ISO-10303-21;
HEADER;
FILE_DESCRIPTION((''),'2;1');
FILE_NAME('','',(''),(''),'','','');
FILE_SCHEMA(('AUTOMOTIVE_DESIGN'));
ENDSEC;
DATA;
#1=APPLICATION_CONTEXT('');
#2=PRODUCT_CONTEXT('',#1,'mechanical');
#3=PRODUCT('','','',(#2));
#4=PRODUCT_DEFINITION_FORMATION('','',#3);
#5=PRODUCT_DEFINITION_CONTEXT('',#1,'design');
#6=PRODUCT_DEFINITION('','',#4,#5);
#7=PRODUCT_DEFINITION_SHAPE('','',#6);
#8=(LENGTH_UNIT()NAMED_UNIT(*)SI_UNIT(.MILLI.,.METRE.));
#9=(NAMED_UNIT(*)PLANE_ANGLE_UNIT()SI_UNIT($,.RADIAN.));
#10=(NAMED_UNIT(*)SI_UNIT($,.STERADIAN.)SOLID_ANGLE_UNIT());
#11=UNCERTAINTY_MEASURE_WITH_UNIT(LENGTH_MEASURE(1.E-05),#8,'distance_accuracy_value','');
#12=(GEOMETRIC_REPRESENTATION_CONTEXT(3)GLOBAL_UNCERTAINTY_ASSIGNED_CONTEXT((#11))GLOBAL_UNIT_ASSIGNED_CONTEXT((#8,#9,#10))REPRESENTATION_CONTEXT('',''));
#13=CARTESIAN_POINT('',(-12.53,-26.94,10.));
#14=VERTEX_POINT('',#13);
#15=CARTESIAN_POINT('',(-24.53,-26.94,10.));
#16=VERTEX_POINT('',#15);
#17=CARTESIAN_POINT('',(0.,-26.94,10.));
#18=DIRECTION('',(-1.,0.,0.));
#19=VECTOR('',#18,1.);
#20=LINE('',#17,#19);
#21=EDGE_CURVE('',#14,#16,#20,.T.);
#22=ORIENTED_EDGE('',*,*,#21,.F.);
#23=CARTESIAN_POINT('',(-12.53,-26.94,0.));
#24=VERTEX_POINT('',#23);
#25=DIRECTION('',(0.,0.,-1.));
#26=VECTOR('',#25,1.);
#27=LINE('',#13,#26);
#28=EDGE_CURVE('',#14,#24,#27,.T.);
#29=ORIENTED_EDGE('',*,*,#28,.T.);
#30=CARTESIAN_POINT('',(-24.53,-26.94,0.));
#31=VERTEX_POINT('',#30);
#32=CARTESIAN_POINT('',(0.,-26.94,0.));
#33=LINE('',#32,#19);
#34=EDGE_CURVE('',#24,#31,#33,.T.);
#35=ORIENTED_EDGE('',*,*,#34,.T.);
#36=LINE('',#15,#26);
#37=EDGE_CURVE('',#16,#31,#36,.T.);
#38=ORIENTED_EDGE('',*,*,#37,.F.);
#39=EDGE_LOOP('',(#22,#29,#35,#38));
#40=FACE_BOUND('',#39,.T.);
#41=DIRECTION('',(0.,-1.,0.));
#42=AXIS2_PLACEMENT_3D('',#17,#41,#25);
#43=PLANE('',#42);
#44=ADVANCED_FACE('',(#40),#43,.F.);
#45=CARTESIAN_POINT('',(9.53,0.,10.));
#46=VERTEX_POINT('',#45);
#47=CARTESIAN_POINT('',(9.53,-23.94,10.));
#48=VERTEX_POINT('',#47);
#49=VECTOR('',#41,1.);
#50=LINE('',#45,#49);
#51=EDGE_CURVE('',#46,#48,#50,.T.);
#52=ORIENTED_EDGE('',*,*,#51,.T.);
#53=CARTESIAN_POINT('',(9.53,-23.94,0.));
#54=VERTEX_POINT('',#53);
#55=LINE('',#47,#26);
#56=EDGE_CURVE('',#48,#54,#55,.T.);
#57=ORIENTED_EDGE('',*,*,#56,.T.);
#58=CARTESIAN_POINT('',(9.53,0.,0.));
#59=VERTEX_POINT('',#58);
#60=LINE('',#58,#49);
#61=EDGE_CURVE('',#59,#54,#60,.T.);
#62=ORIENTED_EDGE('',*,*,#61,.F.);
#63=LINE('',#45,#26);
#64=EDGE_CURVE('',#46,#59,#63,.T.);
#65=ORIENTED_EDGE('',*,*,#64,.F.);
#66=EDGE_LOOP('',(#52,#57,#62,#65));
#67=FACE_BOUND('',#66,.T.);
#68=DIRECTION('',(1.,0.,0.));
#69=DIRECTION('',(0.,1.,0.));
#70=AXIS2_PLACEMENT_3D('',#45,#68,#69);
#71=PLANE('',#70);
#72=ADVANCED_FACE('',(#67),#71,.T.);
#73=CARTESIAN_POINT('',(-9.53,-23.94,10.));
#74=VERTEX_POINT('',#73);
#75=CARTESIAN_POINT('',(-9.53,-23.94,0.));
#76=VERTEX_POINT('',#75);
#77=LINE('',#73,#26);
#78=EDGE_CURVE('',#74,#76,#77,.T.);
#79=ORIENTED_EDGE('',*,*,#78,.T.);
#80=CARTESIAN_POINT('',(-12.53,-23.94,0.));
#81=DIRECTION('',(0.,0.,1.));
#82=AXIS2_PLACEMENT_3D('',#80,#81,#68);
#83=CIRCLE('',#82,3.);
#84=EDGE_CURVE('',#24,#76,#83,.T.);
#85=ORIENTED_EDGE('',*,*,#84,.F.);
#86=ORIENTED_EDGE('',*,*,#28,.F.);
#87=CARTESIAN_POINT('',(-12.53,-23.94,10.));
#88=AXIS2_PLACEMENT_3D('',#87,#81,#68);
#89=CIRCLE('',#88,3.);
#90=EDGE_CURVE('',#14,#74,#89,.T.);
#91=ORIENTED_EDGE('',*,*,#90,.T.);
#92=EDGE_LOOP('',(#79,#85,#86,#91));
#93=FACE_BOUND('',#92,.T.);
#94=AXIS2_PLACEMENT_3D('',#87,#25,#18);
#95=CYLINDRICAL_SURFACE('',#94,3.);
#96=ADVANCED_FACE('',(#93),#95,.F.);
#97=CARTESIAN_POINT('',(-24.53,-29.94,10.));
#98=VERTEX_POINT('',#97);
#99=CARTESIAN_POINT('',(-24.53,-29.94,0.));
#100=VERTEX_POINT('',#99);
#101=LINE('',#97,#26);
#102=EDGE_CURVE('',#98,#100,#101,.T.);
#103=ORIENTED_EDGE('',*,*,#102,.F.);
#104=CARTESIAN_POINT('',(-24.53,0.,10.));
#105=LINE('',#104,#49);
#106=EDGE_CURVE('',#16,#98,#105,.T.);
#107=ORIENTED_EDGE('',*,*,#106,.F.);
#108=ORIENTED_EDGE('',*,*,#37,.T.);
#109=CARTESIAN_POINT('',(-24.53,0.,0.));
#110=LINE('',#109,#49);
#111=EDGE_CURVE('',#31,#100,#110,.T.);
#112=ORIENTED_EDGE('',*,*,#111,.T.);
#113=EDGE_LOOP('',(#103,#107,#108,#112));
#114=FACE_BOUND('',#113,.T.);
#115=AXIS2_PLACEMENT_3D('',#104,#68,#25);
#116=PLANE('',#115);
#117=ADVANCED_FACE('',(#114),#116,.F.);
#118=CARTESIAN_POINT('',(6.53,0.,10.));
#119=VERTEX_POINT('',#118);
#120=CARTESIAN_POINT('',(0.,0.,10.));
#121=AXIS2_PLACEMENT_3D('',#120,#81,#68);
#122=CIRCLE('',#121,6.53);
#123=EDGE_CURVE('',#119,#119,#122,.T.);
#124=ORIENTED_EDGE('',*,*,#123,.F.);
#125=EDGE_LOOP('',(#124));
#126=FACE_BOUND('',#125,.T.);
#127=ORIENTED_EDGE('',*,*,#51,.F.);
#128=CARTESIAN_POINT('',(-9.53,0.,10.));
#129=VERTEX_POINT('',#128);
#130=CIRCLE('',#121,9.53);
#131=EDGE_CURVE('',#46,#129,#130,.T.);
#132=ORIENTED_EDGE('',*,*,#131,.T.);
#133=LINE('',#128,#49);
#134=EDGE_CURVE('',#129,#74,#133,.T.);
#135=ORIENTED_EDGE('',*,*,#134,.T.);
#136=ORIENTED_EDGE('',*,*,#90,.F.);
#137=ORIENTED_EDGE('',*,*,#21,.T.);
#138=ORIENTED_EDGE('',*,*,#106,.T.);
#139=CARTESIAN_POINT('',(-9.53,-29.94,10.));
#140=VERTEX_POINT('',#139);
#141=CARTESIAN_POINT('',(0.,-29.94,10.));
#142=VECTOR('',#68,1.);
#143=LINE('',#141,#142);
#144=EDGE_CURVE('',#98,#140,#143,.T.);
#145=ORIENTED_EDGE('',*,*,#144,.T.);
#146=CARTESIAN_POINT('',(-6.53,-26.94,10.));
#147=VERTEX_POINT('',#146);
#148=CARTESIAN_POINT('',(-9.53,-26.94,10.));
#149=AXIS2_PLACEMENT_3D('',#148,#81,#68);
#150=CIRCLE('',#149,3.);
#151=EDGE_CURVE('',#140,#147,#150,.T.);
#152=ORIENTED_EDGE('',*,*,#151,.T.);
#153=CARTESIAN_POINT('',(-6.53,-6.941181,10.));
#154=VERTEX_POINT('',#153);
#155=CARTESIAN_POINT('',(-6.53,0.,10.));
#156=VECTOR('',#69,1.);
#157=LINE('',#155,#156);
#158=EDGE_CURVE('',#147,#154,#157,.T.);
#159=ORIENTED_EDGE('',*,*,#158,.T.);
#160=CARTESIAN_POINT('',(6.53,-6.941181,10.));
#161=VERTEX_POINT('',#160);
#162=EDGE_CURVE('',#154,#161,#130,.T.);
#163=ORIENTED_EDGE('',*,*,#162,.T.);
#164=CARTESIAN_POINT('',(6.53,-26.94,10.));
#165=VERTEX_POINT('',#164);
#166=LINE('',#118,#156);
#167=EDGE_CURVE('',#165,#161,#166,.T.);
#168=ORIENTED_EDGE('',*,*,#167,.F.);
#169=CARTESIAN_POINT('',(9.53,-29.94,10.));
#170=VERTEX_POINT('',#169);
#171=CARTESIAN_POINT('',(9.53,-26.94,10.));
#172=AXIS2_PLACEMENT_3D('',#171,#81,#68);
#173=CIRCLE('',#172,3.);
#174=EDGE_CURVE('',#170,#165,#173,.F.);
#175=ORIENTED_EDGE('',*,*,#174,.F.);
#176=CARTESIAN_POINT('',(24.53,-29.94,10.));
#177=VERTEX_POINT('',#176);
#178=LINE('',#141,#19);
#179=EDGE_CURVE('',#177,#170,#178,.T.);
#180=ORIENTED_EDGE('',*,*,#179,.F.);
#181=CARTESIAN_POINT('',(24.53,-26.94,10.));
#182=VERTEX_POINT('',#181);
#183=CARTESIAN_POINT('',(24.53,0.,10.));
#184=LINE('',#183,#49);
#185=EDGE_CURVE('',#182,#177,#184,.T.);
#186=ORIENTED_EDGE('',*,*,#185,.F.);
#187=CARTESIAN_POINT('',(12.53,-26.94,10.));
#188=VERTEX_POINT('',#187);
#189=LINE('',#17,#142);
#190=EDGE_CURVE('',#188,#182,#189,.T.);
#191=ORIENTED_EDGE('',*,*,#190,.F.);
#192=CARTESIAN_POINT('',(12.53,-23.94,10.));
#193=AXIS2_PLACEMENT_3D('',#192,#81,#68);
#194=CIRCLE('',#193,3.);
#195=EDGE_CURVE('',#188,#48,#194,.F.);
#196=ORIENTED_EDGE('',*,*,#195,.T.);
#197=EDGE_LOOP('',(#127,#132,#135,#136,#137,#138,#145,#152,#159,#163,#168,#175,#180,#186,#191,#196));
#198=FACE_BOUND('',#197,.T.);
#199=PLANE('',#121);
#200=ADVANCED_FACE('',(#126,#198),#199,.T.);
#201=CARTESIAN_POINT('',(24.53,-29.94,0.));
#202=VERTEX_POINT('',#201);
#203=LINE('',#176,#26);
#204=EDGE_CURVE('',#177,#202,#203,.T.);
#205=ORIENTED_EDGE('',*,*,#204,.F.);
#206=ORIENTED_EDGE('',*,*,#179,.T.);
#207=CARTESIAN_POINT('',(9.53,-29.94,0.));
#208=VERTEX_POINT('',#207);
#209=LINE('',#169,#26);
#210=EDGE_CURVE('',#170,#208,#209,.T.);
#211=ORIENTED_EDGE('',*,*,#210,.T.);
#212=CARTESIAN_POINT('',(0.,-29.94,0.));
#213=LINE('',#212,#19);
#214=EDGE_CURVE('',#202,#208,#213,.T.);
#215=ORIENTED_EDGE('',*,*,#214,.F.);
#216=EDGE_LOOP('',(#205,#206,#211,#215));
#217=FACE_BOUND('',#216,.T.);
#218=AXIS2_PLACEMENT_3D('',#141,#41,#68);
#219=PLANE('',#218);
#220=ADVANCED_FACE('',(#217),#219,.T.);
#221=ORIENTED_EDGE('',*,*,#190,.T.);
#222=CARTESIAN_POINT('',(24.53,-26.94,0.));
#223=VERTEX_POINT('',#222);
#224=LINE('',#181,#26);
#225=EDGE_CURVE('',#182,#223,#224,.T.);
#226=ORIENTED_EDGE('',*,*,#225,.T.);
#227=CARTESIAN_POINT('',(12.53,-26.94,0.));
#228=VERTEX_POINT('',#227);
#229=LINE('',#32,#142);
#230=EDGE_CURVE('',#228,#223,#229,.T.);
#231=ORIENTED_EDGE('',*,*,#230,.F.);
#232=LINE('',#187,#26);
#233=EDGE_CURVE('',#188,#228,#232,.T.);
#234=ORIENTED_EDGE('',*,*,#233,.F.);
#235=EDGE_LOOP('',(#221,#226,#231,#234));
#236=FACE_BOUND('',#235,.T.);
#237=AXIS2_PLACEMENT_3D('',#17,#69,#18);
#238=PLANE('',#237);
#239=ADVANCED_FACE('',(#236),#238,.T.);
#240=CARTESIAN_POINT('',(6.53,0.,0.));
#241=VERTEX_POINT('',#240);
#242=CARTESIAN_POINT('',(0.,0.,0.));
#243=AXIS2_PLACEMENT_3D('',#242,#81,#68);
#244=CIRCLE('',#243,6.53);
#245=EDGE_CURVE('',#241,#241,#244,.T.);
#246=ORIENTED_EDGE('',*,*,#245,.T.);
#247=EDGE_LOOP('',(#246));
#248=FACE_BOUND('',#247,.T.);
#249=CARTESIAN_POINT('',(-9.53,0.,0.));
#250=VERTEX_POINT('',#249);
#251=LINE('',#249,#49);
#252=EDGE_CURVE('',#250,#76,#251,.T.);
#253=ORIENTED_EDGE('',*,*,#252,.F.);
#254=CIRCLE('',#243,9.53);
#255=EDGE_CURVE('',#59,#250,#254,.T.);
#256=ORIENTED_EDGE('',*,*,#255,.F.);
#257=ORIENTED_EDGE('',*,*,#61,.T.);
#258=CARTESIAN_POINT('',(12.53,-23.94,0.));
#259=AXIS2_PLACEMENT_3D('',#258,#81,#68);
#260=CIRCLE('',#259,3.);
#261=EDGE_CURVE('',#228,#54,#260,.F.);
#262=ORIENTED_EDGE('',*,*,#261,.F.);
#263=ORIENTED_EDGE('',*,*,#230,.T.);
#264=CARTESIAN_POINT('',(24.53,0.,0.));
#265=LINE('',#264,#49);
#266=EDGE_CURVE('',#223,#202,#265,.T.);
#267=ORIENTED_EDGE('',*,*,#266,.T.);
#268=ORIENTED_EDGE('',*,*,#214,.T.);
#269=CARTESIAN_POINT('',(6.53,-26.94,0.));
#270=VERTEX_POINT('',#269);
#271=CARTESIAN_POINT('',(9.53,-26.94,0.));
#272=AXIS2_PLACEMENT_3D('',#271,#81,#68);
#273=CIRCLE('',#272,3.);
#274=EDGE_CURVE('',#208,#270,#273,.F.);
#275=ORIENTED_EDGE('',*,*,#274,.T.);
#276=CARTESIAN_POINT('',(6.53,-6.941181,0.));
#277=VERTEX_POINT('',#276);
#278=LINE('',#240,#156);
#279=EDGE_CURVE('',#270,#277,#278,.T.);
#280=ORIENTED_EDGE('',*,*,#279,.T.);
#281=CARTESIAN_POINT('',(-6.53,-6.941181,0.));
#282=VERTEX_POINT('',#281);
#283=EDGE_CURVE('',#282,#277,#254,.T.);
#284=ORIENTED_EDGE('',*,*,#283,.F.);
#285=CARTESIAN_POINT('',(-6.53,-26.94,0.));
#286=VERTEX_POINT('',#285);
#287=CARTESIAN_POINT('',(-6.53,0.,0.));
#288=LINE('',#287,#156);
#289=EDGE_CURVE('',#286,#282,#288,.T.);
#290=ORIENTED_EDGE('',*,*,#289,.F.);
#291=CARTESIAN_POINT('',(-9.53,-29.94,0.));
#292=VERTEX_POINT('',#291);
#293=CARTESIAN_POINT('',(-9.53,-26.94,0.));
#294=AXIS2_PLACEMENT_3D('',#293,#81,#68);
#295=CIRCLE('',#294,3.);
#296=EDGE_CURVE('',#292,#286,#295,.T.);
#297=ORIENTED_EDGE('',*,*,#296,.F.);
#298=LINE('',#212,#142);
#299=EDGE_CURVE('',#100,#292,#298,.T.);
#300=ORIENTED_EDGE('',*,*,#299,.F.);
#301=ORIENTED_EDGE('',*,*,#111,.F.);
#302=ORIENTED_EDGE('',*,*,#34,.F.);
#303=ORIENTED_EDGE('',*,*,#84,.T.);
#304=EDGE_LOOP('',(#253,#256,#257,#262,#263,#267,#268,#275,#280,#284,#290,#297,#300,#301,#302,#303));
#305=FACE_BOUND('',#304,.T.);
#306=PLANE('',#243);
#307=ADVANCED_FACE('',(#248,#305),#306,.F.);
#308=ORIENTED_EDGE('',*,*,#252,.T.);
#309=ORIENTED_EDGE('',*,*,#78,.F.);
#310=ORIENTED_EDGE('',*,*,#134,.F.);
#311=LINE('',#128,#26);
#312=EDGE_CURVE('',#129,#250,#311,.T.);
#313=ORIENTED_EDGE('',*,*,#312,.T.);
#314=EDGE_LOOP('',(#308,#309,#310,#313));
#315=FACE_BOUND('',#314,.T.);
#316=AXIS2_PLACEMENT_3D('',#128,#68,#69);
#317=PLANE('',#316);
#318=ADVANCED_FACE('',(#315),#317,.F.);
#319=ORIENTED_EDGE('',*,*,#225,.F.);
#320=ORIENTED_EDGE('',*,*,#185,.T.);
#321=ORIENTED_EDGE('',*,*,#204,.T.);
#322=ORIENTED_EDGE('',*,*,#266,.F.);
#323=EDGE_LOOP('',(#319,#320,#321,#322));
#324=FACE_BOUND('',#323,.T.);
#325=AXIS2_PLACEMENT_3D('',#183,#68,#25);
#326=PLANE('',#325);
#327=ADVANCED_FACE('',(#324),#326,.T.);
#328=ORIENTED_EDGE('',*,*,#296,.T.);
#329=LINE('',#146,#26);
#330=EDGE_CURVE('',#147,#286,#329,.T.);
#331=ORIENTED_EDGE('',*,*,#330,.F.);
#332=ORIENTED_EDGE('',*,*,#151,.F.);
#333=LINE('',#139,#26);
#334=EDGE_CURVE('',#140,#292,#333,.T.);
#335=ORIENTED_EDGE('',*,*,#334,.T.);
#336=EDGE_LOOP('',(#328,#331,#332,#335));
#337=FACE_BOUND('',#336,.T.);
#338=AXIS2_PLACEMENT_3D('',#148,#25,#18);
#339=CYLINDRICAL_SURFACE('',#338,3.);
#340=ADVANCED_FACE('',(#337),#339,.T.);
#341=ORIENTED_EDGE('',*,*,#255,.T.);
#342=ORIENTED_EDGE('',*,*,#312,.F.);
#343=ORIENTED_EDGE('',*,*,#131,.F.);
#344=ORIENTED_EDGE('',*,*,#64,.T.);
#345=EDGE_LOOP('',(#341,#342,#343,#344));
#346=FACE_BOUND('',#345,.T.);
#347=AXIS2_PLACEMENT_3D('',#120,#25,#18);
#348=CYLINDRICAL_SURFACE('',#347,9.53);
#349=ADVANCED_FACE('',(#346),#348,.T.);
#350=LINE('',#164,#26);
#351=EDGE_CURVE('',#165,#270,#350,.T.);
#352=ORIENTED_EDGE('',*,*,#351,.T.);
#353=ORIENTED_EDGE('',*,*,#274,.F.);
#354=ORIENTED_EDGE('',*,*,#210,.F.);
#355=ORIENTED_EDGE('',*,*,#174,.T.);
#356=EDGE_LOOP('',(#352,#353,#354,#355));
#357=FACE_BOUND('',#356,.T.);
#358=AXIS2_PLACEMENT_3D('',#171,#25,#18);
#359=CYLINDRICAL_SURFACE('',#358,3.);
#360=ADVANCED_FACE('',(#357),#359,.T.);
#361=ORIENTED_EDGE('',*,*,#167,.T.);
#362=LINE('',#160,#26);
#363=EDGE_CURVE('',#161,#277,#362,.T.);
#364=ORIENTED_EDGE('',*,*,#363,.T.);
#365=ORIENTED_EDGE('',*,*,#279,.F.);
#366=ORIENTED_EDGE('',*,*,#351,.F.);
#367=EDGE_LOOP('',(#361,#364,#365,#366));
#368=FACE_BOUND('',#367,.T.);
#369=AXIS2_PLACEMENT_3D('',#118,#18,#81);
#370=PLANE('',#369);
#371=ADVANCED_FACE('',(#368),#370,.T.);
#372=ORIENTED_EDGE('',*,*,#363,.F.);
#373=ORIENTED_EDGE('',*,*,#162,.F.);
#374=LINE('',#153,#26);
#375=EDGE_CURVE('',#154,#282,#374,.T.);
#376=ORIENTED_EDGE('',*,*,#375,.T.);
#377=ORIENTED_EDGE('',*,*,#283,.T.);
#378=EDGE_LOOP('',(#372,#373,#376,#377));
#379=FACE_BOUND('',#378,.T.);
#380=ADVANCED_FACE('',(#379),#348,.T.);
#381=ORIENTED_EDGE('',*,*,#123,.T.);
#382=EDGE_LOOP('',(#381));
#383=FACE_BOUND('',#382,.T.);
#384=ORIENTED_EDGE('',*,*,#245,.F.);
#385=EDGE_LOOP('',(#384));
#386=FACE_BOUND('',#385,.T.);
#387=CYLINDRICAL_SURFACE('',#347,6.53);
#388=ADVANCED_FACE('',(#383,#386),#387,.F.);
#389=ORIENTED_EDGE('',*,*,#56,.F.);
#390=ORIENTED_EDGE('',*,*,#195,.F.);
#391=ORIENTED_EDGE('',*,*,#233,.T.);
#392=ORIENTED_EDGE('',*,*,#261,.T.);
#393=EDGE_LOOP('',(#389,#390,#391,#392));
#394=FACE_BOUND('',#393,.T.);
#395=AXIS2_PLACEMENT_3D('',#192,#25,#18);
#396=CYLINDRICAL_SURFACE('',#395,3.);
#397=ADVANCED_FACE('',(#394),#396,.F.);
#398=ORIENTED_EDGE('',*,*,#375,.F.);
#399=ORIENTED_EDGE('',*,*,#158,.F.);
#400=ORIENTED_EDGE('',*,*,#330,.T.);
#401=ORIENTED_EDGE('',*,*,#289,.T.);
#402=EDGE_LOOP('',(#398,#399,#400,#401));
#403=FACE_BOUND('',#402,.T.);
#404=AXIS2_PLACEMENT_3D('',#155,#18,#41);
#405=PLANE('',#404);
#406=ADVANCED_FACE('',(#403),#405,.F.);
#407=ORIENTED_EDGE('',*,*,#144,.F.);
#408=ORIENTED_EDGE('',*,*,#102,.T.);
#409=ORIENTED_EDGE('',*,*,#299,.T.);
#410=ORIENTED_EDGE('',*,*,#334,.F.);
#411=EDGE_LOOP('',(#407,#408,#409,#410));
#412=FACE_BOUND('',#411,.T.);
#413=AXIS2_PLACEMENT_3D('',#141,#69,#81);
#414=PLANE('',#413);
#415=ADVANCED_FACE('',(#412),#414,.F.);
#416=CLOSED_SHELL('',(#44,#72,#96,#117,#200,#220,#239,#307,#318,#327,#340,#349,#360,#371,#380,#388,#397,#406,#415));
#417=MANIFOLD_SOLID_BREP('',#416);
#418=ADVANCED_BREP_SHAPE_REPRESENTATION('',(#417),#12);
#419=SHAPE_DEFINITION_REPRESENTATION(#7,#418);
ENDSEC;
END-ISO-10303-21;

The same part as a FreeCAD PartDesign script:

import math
import FreeCAD as App
import Part
import Sketcher

doc = App.newDocument("Part")
body = doc.addObject("PartDesign::Body", "Body")

# Sketch on XY plane
sketch1 = body.newObject("Sketcher::SketchObject", "Sketch")
sketch1.AttachmentSupport = (doc.getObject("XY_Plane"), [""])
sketch1.MapMode = "FlatFace"
sketch1.addGeometry(Part.LineSegment(App.Vector(6.5, -6.9, 0), App.Vector(6.5, -26.9, 0)), False)
sketch1.addGeometry(Part.ArcOfCircle(Part.Circle(App.Vector(9.5, -26.9, 0), App.Vector(0, 0, 1), 3), math.radians(180), math.radians(270)), False)
sketch1.addGeometry(Part.LineSegment(App.Vector(9.5, -29.9, 0), App.Vector(24.5, -29.9, 0)), False)
sketch1.addGeometry(Part.LineSegment(App.Vector(24.5, -29.9, 0), App.Vector(24.5, -26.9, 0)), False)
sketch1.addGeometry(Part.LineSegment(App.Vector(24.5, -26.9, 0), App.Vector(12.5, -26.9, 0)), False)
sketch1.addGeometry(Part.ArcOfCircle(Part.Circle(App.Vector(12.5, -23.9, 0), App.Vector(0, 0, 1), 3), math.radians(180), math.radians(270)), False)
sketch1.addGeometry(Part.LineSegment(App.Vector(9.5, -23.9, 0), App.Vector(9.5, 0, 0)), False)
sketch1.addGeometry(Part.ArcOfCircle(Part.Circle(App.Vector(0, 0, 0), App.Vector(0, 0, 1), 9.5), math.radians(0), math.radians(180)), False)
sketch1.addGeometry(Part.LineSegment(App.Vector(-9.5, 0, 0), App.Vector(-9.5, -23.9, 0)), False)
sketch1.addGeometry(Part.ArcOfCircle(Part.Circle(App.Vector(-12.5, -23.9, 0), App.Vector(0, 0, 1), 3), math.radians(-90), math.radians(0)), False)
sketch1.addGeometry(Part.LineSegment(App.Vector(-12.5, -26.9, 0), App.Vector(-24.5, -26.9, 0)), False)
sketch1.addGeometry(Part.LineSegment(App.Vector(-24.5, -26.9, 0), App.Vector(-24.5, -29.9, 0)), False)
sketch1.addGeometry(Part.LineSegment(App.Vector(-24.5, -29.9, 0), App.Vector(-9.5, -29.9, 0)), False)
sketch1.addGeometry(Part.ArcOfCircle(Part.Circle(App.Vector(-9.5, -26.9, 0), App.Vector(0, 0, 1), 3), math.radians(-90), math.radians(0)), False)
sketch1.addGeometry(Part.LineSegment(App.Vector(-6.5, -26.9, 0), App.Vector(-6.5, -6.9, 0)), False)
sketch1.addGeometry(Part.ArcOfCircle(Part.Circle(App.Vector(0, 0, 0), App.Vector(0, 0, 1), 9.5), math.radians(-133), math.radians(-47)), False)
sketch1.addGeometry(Part.Circle(App.Vector(0, 0, 0), App.Vector(0, 0, 1), 6.5), False)
sketch1.addConstraint(Sketcher.Constraint("Tangent", 0, 2, 1, 1))
sketch1.addConstraint(Sketcher.Constraint("Tangent", 1, 2, 2, 1))
sketch1.addConstraint(Sketcher.Constraint("Coincident", 2, 2, 3, 1))
sketch1.addConstraint(Sketcher.Constraint("Coincident", 3, 2, 4, 1))
sketch1.addConstraint(Sketcher.Constraint("Tangent", 4, 2, 5, 2))
sketch1.addConstraint(Sketcher.Constraint("Tangent", 5, 1, 6, 1))
sketch1.addConstraint(Sketcher.Constraint("Tangent", 6, 2, 7, 1))
sketch1.addConstraint(Sketcher.Constraint("Tangent", 7, 2, 8, 1))
sketch1.addConstraint(Sketcher.Constraint("Tangent", 8, 2, 9, 2))
sketch1.addConstraint(Sketcher.Constraint("Tangent", 9, 1, 10, 1))
sketch1.addConstraint(Sketcher.Constraint("Coincident", 10, 2, 11, 1))
sketch1.addConstraint(Sketcher.Constraint("Coincident", 11, 2, 12, 1))
sketch1.addConstraint(Sketcher.Constraint("Tangent", 12, 2, 13, 1))
sketch1.addConstraint(Sketcher.Constraint("Tangent", 13, 2, 14, 1))
sketch1.addConstraint(Sketcher.Constraint("Coincident", 14, 2, 15, 1))
sketch1.addConstraint(Sketcher.Constraint("Coincident", 15, 2, 0, 1))
sketch1.addConstraint(Sketcher.Constraint("Vertical", 0))
sketch1.addConstraint(Sketcher.Constraint("Horizontal", 2))
sketch1.addConstraint(Sketcher.Constraint("Vertical", 3))
sketch1.addConstraint(Sketcher.Constraint("Horizontal", 4))
sketch1.addConstraint(Sketcher.Constraint("Vertical", 6))
sketch1.addConstraint(Sketcher.Constraint("Vertical", 8))
sketch1.addConstraint(Sketcher.Constraint("Horizontal", 10))
sketch1.addConstraint(Sketcher.Constraint("Vertical", 11))
sketch1.addConstraint(Sketcher.Constraint("Horizontal", 12))
sketch1.addConstraint(Sketcher.Constraint("Vertical", 14))
sketch1.addConstraint(Sketcher.Constraint("Coincident", 7, 3, -1, 1))
sketch1.addConstraint(Sketcher.Constraint("Coincident", 15, 3, -1, 1))
sketch1.addConstraint(Sketcher.Constraint("Coincident", 16, 3, -1, 1))
sketch1.addConstraint(Sketcher.Constraint("Equal", 1, 5))
sketch1.addConstraint(Sketcher.Constraint("Equal", 5, 9))
sketch1.addConstraint(Sketcher.Constraint("Equal", 9, 13))
sketch1.addConstraint(Sketcher.Constraint("Equal", 7, 15))
sketch1.addConstraint(Sketcher.Constraint("Symmetric", 1, 3, 13, 3, -2))
sketch1.addConstraint(Sketcher.Constraint("Symmetric", 3, 2, 10, 2, -2))
sketch1.addConstraint(Sketcher.Constraint("Horizontal", 0, 2, 3, 2))
sketch1.addConstraint(Sketcher.Constraint("Vertical", 1, 2, 5, 1))
sketch1.addConstraint(Sketcher.Constraint("Radius", 1, 3.0))
sketch1.addConstraint(Sketcher.Constraint("Diameter", 16, 13.06))
sketch1.addConstraint(Sketcher.Constraint("DistanceX", 2, 1, 2, 2, 15.0))
sketch1.addConstraint(Sketcher.Constraint("Radius", 7, 9.53))
sketch1.addConstraint(Sketcher.Constraint("DistanceY", 6, 1, 6, 2, 23.94))
pad1 = body.newObject("PartDesign::Pad", "Pad")
pad1.Profile = sketch1
pad1.Length = 10

doc.recompute()
